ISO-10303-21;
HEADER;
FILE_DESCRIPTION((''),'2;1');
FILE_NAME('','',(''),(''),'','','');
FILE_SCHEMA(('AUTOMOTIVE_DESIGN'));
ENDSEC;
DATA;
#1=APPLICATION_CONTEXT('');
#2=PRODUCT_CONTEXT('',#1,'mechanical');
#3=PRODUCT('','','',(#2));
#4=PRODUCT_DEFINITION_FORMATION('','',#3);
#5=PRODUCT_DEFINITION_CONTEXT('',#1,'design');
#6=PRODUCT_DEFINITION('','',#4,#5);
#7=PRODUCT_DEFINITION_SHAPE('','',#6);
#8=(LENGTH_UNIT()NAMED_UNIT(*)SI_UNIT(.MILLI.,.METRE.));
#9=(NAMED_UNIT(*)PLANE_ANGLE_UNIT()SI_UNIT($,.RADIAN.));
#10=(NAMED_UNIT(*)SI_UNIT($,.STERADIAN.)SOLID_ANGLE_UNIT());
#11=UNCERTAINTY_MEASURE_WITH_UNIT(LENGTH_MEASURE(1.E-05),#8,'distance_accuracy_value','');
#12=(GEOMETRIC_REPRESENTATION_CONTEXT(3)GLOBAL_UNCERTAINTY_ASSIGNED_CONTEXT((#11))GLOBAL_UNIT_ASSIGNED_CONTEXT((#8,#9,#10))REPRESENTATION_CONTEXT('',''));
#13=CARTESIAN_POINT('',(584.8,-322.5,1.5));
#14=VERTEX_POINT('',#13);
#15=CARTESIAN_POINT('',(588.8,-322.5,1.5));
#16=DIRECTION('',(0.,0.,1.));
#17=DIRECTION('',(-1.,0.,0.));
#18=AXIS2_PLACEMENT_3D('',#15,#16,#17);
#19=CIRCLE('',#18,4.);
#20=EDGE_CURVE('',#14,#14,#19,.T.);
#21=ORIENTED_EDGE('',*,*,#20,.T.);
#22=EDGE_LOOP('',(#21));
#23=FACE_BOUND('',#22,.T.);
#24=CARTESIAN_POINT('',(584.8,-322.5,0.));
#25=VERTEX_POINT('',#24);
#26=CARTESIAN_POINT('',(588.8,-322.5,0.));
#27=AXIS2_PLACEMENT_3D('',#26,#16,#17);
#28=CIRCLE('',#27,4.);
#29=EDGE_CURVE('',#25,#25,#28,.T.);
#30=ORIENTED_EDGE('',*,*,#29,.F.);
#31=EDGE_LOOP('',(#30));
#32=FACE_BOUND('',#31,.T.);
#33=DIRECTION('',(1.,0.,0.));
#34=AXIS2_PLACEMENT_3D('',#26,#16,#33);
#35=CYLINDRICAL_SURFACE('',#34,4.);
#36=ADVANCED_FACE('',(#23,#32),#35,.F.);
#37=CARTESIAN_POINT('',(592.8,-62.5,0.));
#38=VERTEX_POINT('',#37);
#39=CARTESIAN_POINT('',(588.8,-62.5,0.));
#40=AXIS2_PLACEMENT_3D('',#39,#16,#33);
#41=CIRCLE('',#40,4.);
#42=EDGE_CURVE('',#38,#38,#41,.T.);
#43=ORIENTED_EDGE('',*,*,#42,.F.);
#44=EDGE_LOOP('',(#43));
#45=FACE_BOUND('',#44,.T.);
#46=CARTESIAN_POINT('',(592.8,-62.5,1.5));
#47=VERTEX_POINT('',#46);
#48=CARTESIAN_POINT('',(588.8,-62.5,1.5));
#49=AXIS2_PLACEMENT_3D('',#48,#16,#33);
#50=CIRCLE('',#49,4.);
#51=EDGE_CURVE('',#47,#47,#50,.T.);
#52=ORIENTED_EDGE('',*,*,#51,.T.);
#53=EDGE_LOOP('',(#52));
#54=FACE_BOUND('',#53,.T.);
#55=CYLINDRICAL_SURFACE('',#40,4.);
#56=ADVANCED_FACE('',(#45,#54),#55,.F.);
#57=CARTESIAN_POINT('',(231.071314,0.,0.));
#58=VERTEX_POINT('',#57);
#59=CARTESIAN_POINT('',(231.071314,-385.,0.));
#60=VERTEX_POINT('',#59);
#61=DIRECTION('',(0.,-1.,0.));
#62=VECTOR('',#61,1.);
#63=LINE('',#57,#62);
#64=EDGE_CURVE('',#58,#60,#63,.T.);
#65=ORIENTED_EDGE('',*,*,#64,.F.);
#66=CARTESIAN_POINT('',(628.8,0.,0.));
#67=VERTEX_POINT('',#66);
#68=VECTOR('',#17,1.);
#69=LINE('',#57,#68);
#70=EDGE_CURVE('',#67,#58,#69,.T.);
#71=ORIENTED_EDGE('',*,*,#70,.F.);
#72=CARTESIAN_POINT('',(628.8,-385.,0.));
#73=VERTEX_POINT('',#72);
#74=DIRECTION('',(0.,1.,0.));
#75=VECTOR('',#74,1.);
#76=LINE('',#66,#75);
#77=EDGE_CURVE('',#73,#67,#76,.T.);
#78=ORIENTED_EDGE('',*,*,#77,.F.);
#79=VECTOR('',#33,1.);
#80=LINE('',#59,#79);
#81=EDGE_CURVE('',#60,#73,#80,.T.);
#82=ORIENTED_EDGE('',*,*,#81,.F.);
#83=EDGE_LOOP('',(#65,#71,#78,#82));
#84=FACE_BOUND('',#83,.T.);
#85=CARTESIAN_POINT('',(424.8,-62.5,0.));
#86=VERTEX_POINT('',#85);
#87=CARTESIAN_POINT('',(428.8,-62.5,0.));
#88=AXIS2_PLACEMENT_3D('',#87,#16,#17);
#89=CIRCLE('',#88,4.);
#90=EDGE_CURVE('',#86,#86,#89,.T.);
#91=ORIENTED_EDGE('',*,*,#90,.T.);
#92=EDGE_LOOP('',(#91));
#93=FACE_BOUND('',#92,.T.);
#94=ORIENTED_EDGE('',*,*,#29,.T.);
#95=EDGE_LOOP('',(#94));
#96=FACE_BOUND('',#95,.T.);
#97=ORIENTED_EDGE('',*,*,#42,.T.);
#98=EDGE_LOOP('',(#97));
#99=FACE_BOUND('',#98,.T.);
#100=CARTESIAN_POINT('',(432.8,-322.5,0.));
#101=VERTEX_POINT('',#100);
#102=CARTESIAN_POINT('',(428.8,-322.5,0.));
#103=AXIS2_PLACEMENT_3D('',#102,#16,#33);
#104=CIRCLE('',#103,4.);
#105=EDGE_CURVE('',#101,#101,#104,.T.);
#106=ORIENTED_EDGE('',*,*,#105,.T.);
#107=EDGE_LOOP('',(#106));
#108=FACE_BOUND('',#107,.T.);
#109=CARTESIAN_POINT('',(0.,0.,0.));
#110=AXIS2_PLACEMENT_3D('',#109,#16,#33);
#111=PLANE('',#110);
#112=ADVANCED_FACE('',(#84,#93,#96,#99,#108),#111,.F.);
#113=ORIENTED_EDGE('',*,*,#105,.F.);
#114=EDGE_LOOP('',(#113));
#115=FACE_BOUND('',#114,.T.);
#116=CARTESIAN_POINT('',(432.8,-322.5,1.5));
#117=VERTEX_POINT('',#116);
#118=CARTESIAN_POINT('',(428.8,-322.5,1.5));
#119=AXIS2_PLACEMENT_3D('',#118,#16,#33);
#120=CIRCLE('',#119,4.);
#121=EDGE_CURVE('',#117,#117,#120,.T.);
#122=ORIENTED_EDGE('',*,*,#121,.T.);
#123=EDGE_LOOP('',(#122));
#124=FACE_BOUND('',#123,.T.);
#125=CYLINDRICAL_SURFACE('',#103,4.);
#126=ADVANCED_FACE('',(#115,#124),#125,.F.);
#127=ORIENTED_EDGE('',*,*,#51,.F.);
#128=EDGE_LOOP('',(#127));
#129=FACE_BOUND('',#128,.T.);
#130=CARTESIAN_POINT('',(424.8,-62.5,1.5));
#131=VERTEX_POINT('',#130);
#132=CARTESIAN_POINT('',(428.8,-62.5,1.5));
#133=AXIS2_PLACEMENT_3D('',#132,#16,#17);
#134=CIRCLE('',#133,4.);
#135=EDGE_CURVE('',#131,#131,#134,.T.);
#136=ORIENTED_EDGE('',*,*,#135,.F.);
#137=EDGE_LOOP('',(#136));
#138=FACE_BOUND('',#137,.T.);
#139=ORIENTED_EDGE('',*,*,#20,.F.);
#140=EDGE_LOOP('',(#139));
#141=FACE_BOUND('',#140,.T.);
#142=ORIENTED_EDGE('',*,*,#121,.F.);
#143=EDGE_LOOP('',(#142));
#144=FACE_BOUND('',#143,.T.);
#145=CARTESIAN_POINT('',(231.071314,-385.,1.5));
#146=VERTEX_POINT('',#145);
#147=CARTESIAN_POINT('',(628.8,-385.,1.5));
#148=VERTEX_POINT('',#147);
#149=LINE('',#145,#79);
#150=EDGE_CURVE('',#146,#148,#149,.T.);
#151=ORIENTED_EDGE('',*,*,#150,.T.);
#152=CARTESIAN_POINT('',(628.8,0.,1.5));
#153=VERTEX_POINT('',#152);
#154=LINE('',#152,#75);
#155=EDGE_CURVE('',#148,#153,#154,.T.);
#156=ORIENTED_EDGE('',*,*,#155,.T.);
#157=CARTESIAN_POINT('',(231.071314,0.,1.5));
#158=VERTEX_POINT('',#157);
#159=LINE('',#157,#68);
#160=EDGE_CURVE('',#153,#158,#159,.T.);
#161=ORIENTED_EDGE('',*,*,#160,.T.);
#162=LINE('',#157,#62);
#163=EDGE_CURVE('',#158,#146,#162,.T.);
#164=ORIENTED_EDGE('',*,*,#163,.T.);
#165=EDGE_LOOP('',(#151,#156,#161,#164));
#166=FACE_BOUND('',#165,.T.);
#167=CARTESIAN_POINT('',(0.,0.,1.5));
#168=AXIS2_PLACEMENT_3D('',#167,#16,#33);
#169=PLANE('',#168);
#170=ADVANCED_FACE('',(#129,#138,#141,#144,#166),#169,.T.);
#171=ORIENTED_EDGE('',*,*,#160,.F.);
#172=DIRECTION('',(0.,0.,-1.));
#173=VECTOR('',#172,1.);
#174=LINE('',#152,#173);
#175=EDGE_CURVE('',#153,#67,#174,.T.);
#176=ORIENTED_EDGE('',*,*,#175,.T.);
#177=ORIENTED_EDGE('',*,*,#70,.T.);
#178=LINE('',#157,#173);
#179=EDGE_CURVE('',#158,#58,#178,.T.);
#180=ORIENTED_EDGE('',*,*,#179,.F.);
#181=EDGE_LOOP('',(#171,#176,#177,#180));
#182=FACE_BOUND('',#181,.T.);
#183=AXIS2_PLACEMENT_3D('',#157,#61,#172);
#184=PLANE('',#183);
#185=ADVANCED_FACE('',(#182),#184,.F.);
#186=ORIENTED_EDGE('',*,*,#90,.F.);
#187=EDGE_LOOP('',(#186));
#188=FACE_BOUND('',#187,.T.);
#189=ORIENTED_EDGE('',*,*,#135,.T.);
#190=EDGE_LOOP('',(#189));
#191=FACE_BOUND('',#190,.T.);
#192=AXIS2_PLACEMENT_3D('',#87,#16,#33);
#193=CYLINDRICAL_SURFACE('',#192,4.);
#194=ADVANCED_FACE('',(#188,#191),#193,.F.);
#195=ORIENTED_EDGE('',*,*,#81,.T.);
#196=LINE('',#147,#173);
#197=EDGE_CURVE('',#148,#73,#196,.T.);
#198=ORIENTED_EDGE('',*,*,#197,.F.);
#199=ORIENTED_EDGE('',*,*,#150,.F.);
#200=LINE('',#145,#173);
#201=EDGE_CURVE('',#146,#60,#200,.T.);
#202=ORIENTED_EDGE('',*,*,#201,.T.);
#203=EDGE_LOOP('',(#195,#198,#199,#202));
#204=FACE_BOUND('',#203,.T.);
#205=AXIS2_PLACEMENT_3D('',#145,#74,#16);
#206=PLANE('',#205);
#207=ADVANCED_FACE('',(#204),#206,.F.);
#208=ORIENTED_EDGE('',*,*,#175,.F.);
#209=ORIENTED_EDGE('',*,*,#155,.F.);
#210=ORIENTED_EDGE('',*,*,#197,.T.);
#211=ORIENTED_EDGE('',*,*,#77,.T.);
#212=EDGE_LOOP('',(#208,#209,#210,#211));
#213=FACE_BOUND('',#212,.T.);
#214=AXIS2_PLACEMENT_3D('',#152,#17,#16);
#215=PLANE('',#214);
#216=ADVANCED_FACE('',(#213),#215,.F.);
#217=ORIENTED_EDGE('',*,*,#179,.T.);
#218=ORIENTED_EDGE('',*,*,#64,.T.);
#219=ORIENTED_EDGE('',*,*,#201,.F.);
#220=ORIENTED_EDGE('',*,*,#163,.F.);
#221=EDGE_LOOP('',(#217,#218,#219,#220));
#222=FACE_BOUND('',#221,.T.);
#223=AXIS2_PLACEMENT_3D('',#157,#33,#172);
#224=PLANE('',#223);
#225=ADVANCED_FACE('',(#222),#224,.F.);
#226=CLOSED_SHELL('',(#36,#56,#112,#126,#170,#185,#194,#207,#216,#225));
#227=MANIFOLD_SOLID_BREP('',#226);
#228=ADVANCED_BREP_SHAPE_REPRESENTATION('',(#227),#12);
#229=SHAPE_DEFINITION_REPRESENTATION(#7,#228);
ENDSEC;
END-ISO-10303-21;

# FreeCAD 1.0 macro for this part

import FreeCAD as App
import Part
import Sketcher
Q = App.Units.Quantity


def add_polygon(sketch, points):
    """Adds a closed chain of lines whose ends are joined by coincident constraints."""
    first, n = sketch.GeometryCount, len(points)
    for a, b in zip(points, points[1:] + points[:1]):
        sketch.addGeometry(Part.LineSegment(App.Vector(*a, 0), App.Vector(*b, 0)), False)
    for i in range(n):
        sketch.addConstraint(Sketcher.Constraint("Coincident", first + i, 2, first + (i + 1) % n, 1))

doc = App.newDocument("Part")
body = doc.addObject("PartDesign::Body", "Body")

# Sketch on XY plane
sketch1 = body.newObject("Sketcher::SketchObject", "Sketch")
sketch1.AttachmentSupport = (doc.getObject("XY_Plane"), [""])
sketch1.MapMode = "FlatFace"
add_polygon(sketch1, [(231, 0), (231, -385), (629, -385), (629, 0)])  # lines 0-3
sketch1.addConstraint(Sketcher.Constraint("Vertical", 0))
sketch1.addConstraint(Sketcher.Constraint("Horizontal", 1))
sketch1.addConstraint(Sketcher.Constraint("Vertical", 2))
sketch1.addConstraint(Sketcher.Constraint("Horizontal", 3))
sketch1.addConstraint(Sketcher.Constraint("PointOnObject", 2, 2, -1))
sketch1.addConstraint(Sketcher.Constraint("DistanceY", 0, 2, 0, 1, Q("385 mm")))
sketch1.addConstraint(Sketcher.Constraint("DistanceX", -1, 1, 1, 2, Q("628.8 mm")))
sketch1.addConstraint(Sketcher.Constraint("DistanceX", 1, 1, 1, 2, Q("397.728686 mm")))
pad1 = body.newObject("PartDesign::Pad", "Pad")
pad1.Profile = sketch1
pad1.Length = 1.5

# Sketch on XY plane
sketch2 = body.newObject("Sketcher::SketchObject", "Sketch001")
sketch2.AttachmentSupport = (doc.getObject("XY_Plane"), [""])
sketch2.MapMode = "FlatFace"
sketch2.AttachmentOffset = App.Placement(App.Vector(0, 0, 1.5), App.Rotation())
sketch2.addGeometry(Part.Circle(App.Vector(588.8, -62.5, 0), App.Vector(0, 0, 1), 4), False)
sketch2.addGeometry(Part.Circle(App.Vector(588.8, -322.5, 0), App.Vector(0, 0, 1), 4), False)
sketch2.addGeometry(Part.Circle(App.Vector(428.8, -62.5, 0), App.Vector(0, 0, 1), 4), False)
sketch2.addGeometry(Part.Circle(App.Vector(428.8, -322.5, 0), App.Vector(0, 0, 1), 4), False)
sketch2.addConstraint(Sketcher.Constraint("Equal", 0, 1))
sketch2.addConstraint(Sketcher.Constraint("Equal", 1, 2))
sketch2.addConstraint(Sketcher.Constraint("Equal", 2, 3))
sketch2.addConstraint(Sketcher.Constraint("Horizontal", 0, 3, 2, 3))
sketch2.addConstraint(Sketcher.Constraint("Horizontal", 1, 3, 3, 3))
sketch2.addConstraint(Sketcher.Constraint("Vertical", 0, 3, 1, 3))
sketch2.addConstraint(Sketcher.Constraint("Vertical", 2, 3, 3, 3))
sketch2.addConstraint(Sketcher.Constraint("Diameter", 0, Q("8 mm")))
sketch2.addConstraint(Sketcher.Constraint("DistanceY", 1, 3, 0, 3, Q("260 mm")))
sketch2.addConstraint(Sketcher.Constraint("DistanceX", 2, 3, 0, 3, Q("160 mm")))
sketch2.addConstraint(Sketcher.Constraint("DistanceX", -1, 1, 0, 3, Q("588.8 mm")))
sketch2.addConstraint(Sketcher.Constraint("DistanceY", 0, 3, -1, 1, Q("62.5 mm")))
pocket1 = body.newObject("PartDesign::Pocket", "Pocket")
pocket1.Profile = sketch2
pocket1.Length = 1.5

doc.recompute()
